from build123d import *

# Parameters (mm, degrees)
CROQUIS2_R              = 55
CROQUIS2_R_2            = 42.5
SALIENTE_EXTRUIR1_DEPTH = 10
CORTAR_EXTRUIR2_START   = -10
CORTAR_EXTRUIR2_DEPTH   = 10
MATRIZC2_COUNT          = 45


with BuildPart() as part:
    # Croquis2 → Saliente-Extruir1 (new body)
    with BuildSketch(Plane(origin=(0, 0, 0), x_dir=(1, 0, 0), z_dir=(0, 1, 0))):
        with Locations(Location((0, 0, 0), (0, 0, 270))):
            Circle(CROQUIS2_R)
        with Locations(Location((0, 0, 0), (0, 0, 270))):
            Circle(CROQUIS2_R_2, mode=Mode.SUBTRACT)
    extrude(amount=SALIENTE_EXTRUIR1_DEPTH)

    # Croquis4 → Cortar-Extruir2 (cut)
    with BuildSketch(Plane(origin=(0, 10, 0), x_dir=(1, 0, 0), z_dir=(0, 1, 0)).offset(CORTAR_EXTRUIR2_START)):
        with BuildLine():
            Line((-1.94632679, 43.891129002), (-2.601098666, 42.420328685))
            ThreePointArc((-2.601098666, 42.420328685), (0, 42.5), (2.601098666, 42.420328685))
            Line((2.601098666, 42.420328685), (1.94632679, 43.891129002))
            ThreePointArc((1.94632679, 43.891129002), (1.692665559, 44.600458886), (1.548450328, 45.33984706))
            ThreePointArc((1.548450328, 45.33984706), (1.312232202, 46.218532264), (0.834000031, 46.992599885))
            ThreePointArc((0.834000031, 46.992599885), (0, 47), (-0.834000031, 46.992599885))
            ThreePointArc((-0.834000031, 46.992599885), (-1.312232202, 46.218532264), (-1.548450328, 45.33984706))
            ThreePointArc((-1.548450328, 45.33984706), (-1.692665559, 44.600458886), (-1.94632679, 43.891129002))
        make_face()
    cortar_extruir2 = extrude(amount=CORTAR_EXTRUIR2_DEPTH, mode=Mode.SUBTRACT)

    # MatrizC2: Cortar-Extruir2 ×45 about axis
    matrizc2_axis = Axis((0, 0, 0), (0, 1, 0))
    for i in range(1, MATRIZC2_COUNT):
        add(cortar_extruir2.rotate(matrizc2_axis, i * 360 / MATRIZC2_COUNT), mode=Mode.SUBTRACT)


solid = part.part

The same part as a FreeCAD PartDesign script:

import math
import FreeCAD as App
import Part
import Sketcher

V = App.Vector
Q = App.Units.Quantity

doc = App.newDocument("Part")
body = doc.addObject("PartDesign::Body", "Body")

# Sketch on XZ plane
sketch1 = body.newObject("Sketcher::SketchObject", "Sketch")
sketch1.AttachmentSupport = (doc.getObject("XZ_Plane"), [""])
sketch1.MapMode = "FlatFace"
sketch1.addGeometry(Part.Circle(V(0, 0, 0), V(0, 0, 1), 55), False)
sketch1.addGeometry(Part.Circle(V(0, 0, 0), V(0, 0, 1), 42.5), False)
sketch1.addConstraint(Sketcher.Constraint("Coincident", 0, 3, -1, 1))
sketch1.addConstraint(Sketcher.Constraint("Coincident", 1, 3, -1, 1))
sketch1.addConstraint(Sketcher.Constraint("Diameter", 0, Q("110 mm")))
sketch1.addConstraint(Sketcher.Constraint("Diameter", 1, Q("85 mm")))
pad1 = body.newObject("PartDesign::Pad", "Pad")
pad1.Profile = sketch1
pad1.Length = 10
pad1.Reversed = True

# Sketch on XZ plane
sketch2 = body.newObject("Sketcher::SketchObject", "Sketch001")
sketch2.AttachmentSupport = (doc.getObject("XZ_Plane"), [""])
sketch2.MapMode = "FlatFace"
sketch2.addGeometry(Part.LineSegment(V(-1.946327, -43.891129, 0), V(-2.601099, -42.420329, 0)), False)
sketch2.addGeometry(Part.ArcOfCircle(Part.Circle(V(0, 0, 0), V(0, 0, 1), 42.5), math.radians(-93.508828), math.radians(-86.491172)), False)
sketch2.addGeometry(Part.LineSegment(V(2.601099, -42.420329, 0), V(1.946327, -43.891129, 0)), False)
sketch2.addGeometry(Part.ArcOfCircle(Part.Circle(V(6.514136, -45.924629, 0), V(0, 0, 1), 5), math.radians(156.002296), math.radians(173.283518)), False)
sketch2.addGeometry(Part.ArcOfCircle(Part.Circle(V(-1.57, -44.972604, 0), V(0, 0, 1), 3.14), math.radians(-40.039145), math.radians(-6.716482)), False)
sketch2.addGeometry(Part.ArcOfCircle(Part.Circle(V(0, 0, 0), V(0, 0, 1), 47), math.radians(-91.016749), math.radians(-88.983251)), False)
sketch2.addGeometry(Part.ArcOfCircle(Part.Circle(V(1.57, -44.972604, 0), V(0, 0, 1), 3.14), math.radians(-173.283518), math.radians(-139.960855)), False)
sketch2.addGeometry(Part.ArcOfCircle(Part.Circle(V(-6.514136, -45.924629, 0), V(0, 0, 1), 5), math.radians(6.716482), math.radians(23.997704)), False)
sketch2.addConstraint(Sketcher.Constraint("Coincident", 0, 2, 1, 1))
sketch2.addConstraint(Sketcher.Constraint("Coincident", 1, 2, 2, 1))
sketch2.addConstraint(Sketcher.Constraint("Tangent", 2, 2, 3, 1))
sketch2.addConstraint(Sketcher.Constraint("Tangent", 3, 2, 4, 2))
sketch2.addConstraint(Sketcher.Constraint("Coincident", 4, 1, 5, 2))
sketch2.addConstraint(Sketcher.Constraint("Coincident", 5, 1, 6, 2))
sketch2.addConstraint(Sketcher.Constraint("Tangent", 6, 1, 7, 1))
sketch2.addConstraint(Sketcher.Constraint("Tangent", 7, 2, 0, 1))
sketch2.addConstraint(Sketcher.Constraint("Coincident", 1, 3, -1, 1))
sketch2.addConstraint(Sketcher.Constraint("Coincident", 5, 3, -1, 1))
sketch2.addConstraint(Sketcher.Constraint("Equal", 4, 6))
sketch2.addConstraint(Sketcher.Constraint("Equal", 3, 7))
sketch2.addConstraint(Sketcher.Constraint("Symmetric", 4, 3, 6, 3, -2))
sketch2.addConstraint(Sketcher.Constraint("Symmetric", 2, 2, 7, 2, -2))
sketch2.addConstraint(Sketcher.Constraint("Radius", 3, Q("5 mm")))
sketch2.addConstraint(Sketcher.Constraint("Radius", 5, Q("47 mm")))
sketch2.addConstraint(Sketcher.Constraint("Radius", 1, Q("42.5 mm")))
sketch2.addConstraint(Sketcher.Constraint("Radius", 4, Q("3.14 mm")))
sketch2.addConstraint(Sketcher.Constraint("DistanceX", 4, 3, -1, 1, Q("1.57 mm")))
sketch2.addConstraint(Sketcher.Constraint("DistanceX", -1, 1, 4, 1, Q("0.834 mm")))
sketch2.addConstraint(Sketcher.Constraint("DistanceX", 0, 2, -1, 1, Q("2.601099 mm")))
sketch2.addConstraint(Sketcher.Constraint("DistanceY", 7, 3, 0, 2, Q("3.504301 mm")))
pocket1 = body.newObject("PartDesign::Pocket", "Pocket")
pocket1.Profile = sketch2
pocket1.Length = 10
doc.recompute()

polarpattern = body.newObject("PartDesign::PolarPattern", "PolarPattern")
polarpattern.Originals = [pocket1]
polarpattern.Axis = (doc.getObject("Y_Axis"), [""])
polarpattern.Angle = 360
polarpattern.Occurrences = 45
body.Tip = polarpattern

doc.recompute()
